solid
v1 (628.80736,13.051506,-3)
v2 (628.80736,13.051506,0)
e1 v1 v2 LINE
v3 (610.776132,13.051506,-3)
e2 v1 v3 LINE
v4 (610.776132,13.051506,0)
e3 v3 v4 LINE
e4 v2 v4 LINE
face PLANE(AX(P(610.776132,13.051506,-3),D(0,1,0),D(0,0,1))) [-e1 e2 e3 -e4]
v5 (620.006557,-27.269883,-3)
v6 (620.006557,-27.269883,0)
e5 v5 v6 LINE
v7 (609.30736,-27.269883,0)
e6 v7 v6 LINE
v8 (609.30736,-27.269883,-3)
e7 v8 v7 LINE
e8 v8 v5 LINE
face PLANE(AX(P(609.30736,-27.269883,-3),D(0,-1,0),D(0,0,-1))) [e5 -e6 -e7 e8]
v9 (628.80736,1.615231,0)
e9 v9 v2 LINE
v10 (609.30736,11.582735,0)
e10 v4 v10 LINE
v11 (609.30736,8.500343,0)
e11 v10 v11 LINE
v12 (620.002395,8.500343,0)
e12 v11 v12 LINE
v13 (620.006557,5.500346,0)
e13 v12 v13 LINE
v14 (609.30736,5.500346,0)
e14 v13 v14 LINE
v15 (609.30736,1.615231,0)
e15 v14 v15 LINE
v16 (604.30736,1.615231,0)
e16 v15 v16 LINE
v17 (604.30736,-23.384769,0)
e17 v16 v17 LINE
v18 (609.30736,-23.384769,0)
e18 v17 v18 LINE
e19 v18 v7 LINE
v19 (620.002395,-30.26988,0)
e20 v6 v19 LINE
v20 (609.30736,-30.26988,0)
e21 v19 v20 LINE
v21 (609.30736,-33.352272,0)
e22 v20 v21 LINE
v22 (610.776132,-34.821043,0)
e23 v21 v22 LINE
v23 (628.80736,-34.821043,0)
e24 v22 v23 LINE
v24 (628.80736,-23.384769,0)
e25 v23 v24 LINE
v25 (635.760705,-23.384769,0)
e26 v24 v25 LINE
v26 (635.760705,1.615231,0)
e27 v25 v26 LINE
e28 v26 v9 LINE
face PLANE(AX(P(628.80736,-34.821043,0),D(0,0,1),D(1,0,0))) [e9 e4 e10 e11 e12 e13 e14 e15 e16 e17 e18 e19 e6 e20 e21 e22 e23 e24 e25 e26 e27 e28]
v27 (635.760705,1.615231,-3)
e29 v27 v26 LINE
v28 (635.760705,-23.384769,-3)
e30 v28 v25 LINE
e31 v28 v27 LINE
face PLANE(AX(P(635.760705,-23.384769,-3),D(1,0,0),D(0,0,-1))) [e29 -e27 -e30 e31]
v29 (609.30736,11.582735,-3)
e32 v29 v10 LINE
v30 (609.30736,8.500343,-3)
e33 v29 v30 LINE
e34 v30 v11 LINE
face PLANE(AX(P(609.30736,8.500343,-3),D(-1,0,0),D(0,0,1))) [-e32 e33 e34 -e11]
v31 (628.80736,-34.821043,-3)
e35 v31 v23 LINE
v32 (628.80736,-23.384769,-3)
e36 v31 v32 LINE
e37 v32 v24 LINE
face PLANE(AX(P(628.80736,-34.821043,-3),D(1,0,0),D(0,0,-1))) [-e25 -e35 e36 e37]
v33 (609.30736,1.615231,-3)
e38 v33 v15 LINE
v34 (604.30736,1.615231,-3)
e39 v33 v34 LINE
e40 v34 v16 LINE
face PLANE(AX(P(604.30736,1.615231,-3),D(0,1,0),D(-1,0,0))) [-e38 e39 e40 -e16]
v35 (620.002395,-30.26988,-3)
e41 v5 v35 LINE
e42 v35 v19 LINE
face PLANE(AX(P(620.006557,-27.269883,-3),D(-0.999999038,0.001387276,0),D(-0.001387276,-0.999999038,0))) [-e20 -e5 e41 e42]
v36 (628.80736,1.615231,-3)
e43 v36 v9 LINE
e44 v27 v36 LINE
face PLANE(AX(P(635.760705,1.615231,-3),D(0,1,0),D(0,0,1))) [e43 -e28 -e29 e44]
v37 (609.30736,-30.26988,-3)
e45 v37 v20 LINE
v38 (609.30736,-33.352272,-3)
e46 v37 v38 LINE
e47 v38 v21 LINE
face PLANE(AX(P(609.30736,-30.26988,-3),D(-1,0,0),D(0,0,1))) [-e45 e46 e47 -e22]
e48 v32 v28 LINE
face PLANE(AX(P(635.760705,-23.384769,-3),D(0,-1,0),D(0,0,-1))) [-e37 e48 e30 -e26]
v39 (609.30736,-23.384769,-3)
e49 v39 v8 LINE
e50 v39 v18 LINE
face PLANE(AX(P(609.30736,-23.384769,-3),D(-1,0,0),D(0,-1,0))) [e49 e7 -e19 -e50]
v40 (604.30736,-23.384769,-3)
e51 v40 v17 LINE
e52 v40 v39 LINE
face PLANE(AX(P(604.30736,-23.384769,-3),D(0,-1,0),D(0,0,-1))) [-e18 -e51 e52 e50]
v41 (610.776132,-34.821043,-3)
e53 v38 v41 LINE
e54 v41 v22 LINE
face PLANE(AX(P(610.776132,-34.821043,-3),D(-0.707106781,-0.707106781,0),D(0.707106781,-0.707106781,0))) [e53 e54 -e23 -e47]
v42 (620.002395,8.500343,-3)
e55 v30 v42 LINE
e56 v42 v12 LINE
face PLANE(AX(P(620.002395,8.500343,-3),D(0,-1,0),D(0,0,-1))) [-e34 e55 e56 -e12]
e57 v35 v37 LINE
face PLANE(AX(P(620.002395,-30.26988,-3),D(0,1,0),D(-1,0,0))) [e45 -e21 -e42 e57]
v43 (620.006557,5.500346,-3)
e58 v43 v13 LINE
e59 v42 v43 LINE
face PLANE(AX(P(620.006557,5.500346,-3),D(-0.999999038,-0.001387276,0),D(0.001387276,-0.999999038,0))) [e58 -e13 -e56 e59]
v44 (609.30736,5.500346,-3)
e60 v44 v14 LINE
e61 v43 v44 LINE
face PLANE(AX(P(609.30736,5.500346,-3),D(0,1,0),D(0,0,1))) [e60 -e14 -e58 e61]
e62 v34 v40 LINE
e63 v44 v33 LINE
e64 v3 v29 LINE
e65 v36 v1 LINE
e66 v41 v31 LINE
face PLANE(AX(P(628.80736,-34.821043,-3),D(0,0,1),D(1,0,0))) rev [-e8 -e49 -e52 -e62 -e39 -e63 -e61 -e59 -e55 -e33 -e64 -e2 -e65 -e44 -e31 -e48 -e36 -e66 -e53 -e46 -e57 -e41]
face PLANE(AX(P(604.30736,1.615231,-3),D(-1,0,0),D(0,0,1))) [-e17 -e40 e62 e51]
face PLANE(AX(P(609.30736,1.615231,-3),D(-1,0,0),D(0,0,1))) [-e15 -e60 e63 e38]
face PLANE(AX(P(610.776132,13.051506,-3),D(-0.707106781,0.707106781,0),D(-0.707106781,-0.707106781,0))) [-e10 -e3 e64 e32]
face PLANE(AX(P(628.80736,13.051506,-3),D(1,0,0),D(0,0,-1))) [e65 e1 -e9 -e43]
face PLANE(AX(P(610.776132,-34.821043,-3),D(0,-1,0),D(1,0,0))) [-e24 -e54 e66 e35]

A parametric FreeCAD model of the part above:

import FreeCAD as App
import Part
import Sketcher

doc = App.newDocument("Part")
body = doc.addObject("PartDesign::Body", "Body")

# Sketch on XY plane
sketch1 = body.newObject("Sketcher::SketchObject", "Sketch")
sketch1.AttachmentSupport = (doc.getObject("XY_Plane"), [""])
sketch1.MapMode = "FlatFace"
sketch1.addGeometry(Part.LineSegment(App.Vector(628.8, -34.8, 0), App.Vector(628.8, -23.4, 0)), False)
sketch1.addGeometry(Part.LineSegment(App.Vector(628.8, -23.4, 0), App.Vector(635.8, -23.4, 0)), False)
sketch1.addGeometry(Part.LineSegment(App.Vector(635.8, -23.4, 0), App.Vector(635.8, 1.6, 0)), False)
sketch1.addGeometry(Part.LineSegment(App.Vector(635.8, 1.6, 0), App.Vector(628.8, 1.6, 0)), False)
sketch1.addGeometry(Part.LineSegment(App.Vector(628.8, 1.6, 0), App.Vector(628.8, 13.1, 0)), False)
sketch1.addGeometry(Part.LineSegment(App.Vector(628.8, 13.1, 0), App.Vector(610.8, 13.1, 0)), False)
sketch1.addGeometry(Part.LineSegment(App.Vector(610.8, 13.1, 0), App.Vector(609.3, 11.6, 0)), False)
sketch1.addGeometry(Part.LineSegment(App.Vector(609.3, 11.6, 0), App.Vector(609.3, 8.5, 0)), False)
sketch1.addGeometry(Part.LineSegment(App.Vector(609.3, 8.5, 0), App.Vector(620, 8.5, 0)), False)
sketch1.addGeometry(Part.LineSegment(App.Vector(620, 8.5, 0), App.Vector(620, 5.5, 0)), False)
sketch1.addGeometry(Part.LineSegment(App.Vector(620, 5.5, 0), App.Vector(609.3, 5.5, 0)), False)
sketch1.addGeometry(Part.LineSegment(App.Vector(609.3, 5.5, 0), App.Vector(609.3, 1.6, 0)), False)
sketch1.addGeometry(Part.LineSegment(App.Vector(609.3, 1.6, 0), App.Vector(604.3, 1.6, 0)), False)
sketch1.addGeometry(Part.LineSegment(App.Vector(604.3, 1.6, 0), App.Vector(604.3, -23.4, 0)), False)
sketch1.addGeometry(Part.LineSegment(App.Vector(604.3, -23.4, 0), App.Vector(609.3, -23.4, 0)), False)
sketch1.addGeometry(Part.LineSegment(App.Vector(609.3, -23.4, 0), App.Vector(609.3, -27.3, 0)), False)
sketch1.addGeometry(Part.LineSegment(App.Vector(609.3, -27.3, 0), App.Vector(620, -27.3, 0)), False)
sketch1.addGeometry(Part.LineSegment(App.Vector(620, -27.3, 0), App.Vector(620, -30.3, 0)), False)
sketch1.addGeometry(Part.LineSegment(App.Vector(620, -30.3, 0), App.Vector(609.3, -30.3, 0)), False)
sketch1.addGeometry(Part.LineSegment(App.Vector(609.3, -30.3, 0), App.Vector(609.3, -33.4, 0)), False)
sketch1.addGeometry(Part.LineSegment(App.Vector(609.3, -33.4, 0), App.Vector(610.8, -34.8, 0)), False)
sketch1.addGeometry(Part.LineSegment(App.Vector(610.8, -34.8, 0), App.Vector(628.8, -34.8, 0)), False)
sketch1.addConstraint(Sketcher.Constraint("Coincident", 0, 2, 1, 1))
sketch1.addConstraint(Sketcher.Constraint("Coincident", 1, 2, 2, 1))
sketch1.addConstraint(Sketcher.Constraint("Coincident", 2, 2, 3, 1))
sketch1.addConstraint(Sketcher.Constraint("Coincident", 3, 2, 4, 1))
sketch1.addConstraint(Sketcher.Constraint("Coincident", 4, 2, 5, 1))
sketch1.addConstraint(Sketcher.Constraint("Coincident", 5, 2, 6, 1))
sketch1.addConstraint(Sketcher.Constraint("Coincident", 6, 2, 7, 1))
sketch1.addConstraint(Sketcher.Constraint("Coincident", 7, 2, 8, 1))
sketch1.addConstraint(Sketcher.Constraint("Coincident", 8, 2, 9, 1))
sketch1.addConstraint(Sketcher.Constraint("Coincident", 9, 2, 10, 1))
sketch1.addConstraint(Sketcher.Constraint("Coincident", 10, 2, 11, 1))
sketch1.addConstraint(Sketcher.Constraint("Coincident", 11, 2, 12, 1))
sketch1.addConstraint(Sketcher.Constraint("Coincident", 12, 2, 13, 1))
sketch1.addConstraint(Sketcher.Constraint("Coincident", 13, 2, 14, 1))
sketch1.addConstraint(Sketcher.Constraint("Coincident", 14, 2, 15, 1))
sketch1.addConstraint(Sketcher.Constraint("Coincident", 15, 2, 16, 1))
sketch1.addConstraint(Sketcher.Constraint("Coincident", 16, 2, 17, 1))
sketch1.addConstraint(Sketcher.Constraint("Coincident", 17, 2, 18, 1))
sketch1.addConstraint(Sketcher.Constraint("Coincident", 18, 2, 19, 1))
sketch1.addConstraint(Sketcher.Constraint("Coincident", 19, 2, 20, 1))
sketch1.addConstraint(Sketcher.Constraint("Coincident", 20, 2, 21, 1))
sketch1.addConstraint(Sketcher.Constraint("Coincident", 21, 2, 0, 1))
sketch1.addConstraint(Sketcher.Constraint("Vertical", 0))
sketch1.addConstraint(Sketcher.Constraint("Horizontal", 1))
sketch1.addConstraint(Sketcher.Constraint("Vertical", 2))
sketch1.addConstraint(Sketcher.Constraint("Horizontal", 3))
sketch1.addConstraint(Sketcher.Constraint("Vertical", 4))
sketch1.addConstraint(Sketcher.Constraint("Horizontal", 5))
sketch1.addConstraint(Sketcher.Constraint("Vertical", 7))
sketch1.addConstraint(Sketcher.Constraint("Horizontal", 8))
sketch1.addConstraint(Sketcher.Constraint("Horizontal", 10))
sketch1.addConstraint(Sketcher.Constraint("Vertical", 11))
sketch1.addConstraint(Sketcher.Constraint("Horizontal", 12))
sketch1.addConstraint(Sketcher.Constraint("Vertical", 13))
sketch1.addConstraint(Sketcher.Constraint("Horizontal", 14))
sketch1.addConstraint(Sketcher.Constraint("Vertical", 15))
sketch1.addConstraint(Sketcher.Constraint("Horizontal", 16))
sketch1.addConstraint(Sketcher.Constraint("Horizontal", 18))
sketch1.addConstraint(Sketcher.Constraint("Vertical", 19))
sketch1.addConstraint(Sketcher.Constraint("Horizontal", 21))
sketch1.addConstraint(Sketcher.Constraint("Perpendicular", 6, 20))
sketch1.addConstraint(Sketcher.Constraint("Horizontal", 3, 2, 11, 2))
sketch1.addConstraint(Sketcher.Constraint("Horizontal", 1, 2, 13, 2))
sketch1.addConstraint(Sketcher.Constraint("Vertical", 0, 2, 3, 2))
sketch1.addConstraint(Sketcher.Constraint("Vertical", 7, 2, 10, 2))
sketch1.addConstraint(Sketcher.Constraint("Vertical", 11, 2, 14, 2))
sketch1.addConstraint(Sketcher.Constraint("Vertical", 9, 2, 16, 2))
sketch1.addConstraint(Sketcher.Constraint("Vertical", 8, 2, 17, 2))
sketch1.addConstraint(Sketcher.Constraint("Vertical", 15, 2, 18, 2))
sketch1.addConstraint(Sketcher.Constraint("Vertical", 5, 2, 20, 2))
sketch1.addConstraint(Sketcher.Constraint("Equal", 0, 4))
sketch1.addConstraint(Sketcher.Constraint("Equal", 11, 15))
sketch1.addConstraint(Sketcher.Constraint("Equal", 7, 19))
sketch1.addConstraint(Sketcher.Constraint("Equal", 9, 17))
sketch1.addConstraint(Sketcher.Constraint("DistanceX", 12, 2, 12, 1, 5.0))
sketch1.addConstraint(Sketcher.Constraint("DistanceY", 2, 1, 2, 2, 25.0))
sketch1.addConstraint(Sketcher.Constraint("Distance", 9, 3.0))
sketch1.addConstraint(Sketcher.Constraint("DistanceX", 6, 2, 4, 2, 19.5))
sketch1.addConstraint(Sketcher.Constraint("DistanceX", 5, 2, 5, 1, 18.031228))
sketch1.addConstraint(Sketcher.Constraint("DistanceY", 7, 2, 7, 1, 3.082392))
sketch1.addConstraint(Sketcher.Constraint("DistanceX", 1, 1, 1, 2, 6.953344))
sketch1.addConstraint(Sketcher.Constraint("DistanceX", 8, 1, 8, 2, 10.695035))
sketch1.addConstraint(Sketcher.Constraint("DistanceX", 10, 2, 10, 1, 10.699196))
sketch1.addConstraint(Sketcher.Constraint("DistanceY", 0, 1, 0, 2, 11.436275))
sketch1.addConstraint(Sketcher.Constraint("DistanceX", -1, 1, 0, 2, 628.80736))
sketch1.addConstraint(Sketcher.Constraint("DistanceY", 0, 2, -1, 1, 23.384769))
pad1 = body.newObject("PartDesign::Pad", "Pad")
pad1.Profile = sketch1
pad1.Length = 3
pad1.Reversed = True

doc.recompute()
